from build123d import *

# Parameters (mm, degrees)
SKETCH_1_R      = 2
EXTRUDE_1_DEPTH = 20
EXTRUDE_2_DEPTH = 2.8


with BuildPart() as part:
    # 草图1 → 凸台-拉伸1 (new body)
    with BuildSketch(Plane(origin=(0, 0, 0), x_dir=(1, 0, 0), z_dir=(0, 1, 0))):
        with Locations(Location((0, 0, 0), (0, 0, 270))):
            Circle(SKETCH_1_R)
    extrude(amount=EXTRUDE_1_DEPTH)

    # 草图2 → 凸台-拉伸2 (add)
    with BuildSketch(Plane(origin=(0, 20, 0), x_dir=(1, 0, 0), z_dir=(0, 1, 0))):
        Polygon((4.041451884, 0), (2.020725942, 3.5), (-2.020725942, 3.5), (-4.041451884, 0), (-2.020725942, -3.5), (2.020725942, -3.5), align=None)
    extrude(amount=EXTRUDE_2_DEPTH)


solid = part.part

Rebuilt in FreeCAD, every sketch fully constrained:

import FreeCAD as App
import Part
import Sketcher
Q = App.Units.Quantity


def add_polygon(sketch, points):
    """Adds a closed chain of lines whose ends are joined by coincident constraints."""
    first, n = sketch.GeometryCount, len(points)
    for a, b in zip(points, points[1:] + points[:1]):
        sketch.addGeometry(Part.LineSegment(App.Vector(*a, 0), App.Vector(*b, 0)), False)
    for i in range(n):
        sketch.addConstraint(Sketcher.Constraint("Coincident", first + i, 2, first + (i + 1) % n, 1))

doc = App.newDocument("Part")
body = doc.addObject("PartDesign::Body", "Body")

sketch1 = body.newObject("Sketcher::SketchObject", "Sketch")
sketch1.AttachmentSupport = (doc.getObject("XZ_Plane"), [""])
sketch1.MapMode = "FlatFace"
sketch1.addGeometry(Part.Circle(App.Vector(0, 0, 0), App.Vector(0, 0, 1), 2), False)
sketch1.addConstraint([
    Sketcher.Constraint("Coincident", 0, 3, -1, 1),
    Sketcher.Constraint("Diameter", 0, 4.0),
])
pad1 = body.newObject("PartDesign::Pad", "Pad")
pad1.Profile = sketch1
pad1.Length = 20
pad1.Reversed = True

sketch2 = body.newObject("Sketcher::SketchObject", "Sketch001")
sketch2.AttachmentSupport = (doc.getObject("XZ_Plane"), [""])
sketch2.MapMode = "FlatFace"
sketch2.AttachmentOffset = App.Placement(App.Vector(0, 0, -20), App.Rotation())
add_polygon(sketch2, [(4, 0), (2, -3.5), (-2, -3.5), (-4, 0), (-2, 3.5), (2, 3.5)])
sketch2.addConstraint([
    Sketcher.Constraint("Horizontal", 1),
    Sketcher.Constraint("Horizontal", 4),
    Sketcher.Constraint("Symmetric", 0, 2, 3, 2, -1, 1),
    Sketcher.Constraint("Symmetric", 2, 2, 5, 2, -1, 1),
    Sketcher.Constraint("PointOnObject", 2, 2, -1),
    Sketcher.Constraint("Parallel", 2, 5),
    Sketcher.Constraint("Vertical", 1, 2, 3, 2),
    Sketcher.Constraint("Angle", 0, Q("-120 deg")),
    Sketcher.Constraint("DistanceY", 1, 2, 3, 2, 7.0),
    Sketcher.Constraint("DistanceX", 1, 2, 1, 1, 4.041452),
])
pad2 = body.newObject("PartDesign::Pad", "Pad001")
pad2.Profile = sketch2
pad2.Length = 2.8
pad2.Reversed = True

doc.recompute()
